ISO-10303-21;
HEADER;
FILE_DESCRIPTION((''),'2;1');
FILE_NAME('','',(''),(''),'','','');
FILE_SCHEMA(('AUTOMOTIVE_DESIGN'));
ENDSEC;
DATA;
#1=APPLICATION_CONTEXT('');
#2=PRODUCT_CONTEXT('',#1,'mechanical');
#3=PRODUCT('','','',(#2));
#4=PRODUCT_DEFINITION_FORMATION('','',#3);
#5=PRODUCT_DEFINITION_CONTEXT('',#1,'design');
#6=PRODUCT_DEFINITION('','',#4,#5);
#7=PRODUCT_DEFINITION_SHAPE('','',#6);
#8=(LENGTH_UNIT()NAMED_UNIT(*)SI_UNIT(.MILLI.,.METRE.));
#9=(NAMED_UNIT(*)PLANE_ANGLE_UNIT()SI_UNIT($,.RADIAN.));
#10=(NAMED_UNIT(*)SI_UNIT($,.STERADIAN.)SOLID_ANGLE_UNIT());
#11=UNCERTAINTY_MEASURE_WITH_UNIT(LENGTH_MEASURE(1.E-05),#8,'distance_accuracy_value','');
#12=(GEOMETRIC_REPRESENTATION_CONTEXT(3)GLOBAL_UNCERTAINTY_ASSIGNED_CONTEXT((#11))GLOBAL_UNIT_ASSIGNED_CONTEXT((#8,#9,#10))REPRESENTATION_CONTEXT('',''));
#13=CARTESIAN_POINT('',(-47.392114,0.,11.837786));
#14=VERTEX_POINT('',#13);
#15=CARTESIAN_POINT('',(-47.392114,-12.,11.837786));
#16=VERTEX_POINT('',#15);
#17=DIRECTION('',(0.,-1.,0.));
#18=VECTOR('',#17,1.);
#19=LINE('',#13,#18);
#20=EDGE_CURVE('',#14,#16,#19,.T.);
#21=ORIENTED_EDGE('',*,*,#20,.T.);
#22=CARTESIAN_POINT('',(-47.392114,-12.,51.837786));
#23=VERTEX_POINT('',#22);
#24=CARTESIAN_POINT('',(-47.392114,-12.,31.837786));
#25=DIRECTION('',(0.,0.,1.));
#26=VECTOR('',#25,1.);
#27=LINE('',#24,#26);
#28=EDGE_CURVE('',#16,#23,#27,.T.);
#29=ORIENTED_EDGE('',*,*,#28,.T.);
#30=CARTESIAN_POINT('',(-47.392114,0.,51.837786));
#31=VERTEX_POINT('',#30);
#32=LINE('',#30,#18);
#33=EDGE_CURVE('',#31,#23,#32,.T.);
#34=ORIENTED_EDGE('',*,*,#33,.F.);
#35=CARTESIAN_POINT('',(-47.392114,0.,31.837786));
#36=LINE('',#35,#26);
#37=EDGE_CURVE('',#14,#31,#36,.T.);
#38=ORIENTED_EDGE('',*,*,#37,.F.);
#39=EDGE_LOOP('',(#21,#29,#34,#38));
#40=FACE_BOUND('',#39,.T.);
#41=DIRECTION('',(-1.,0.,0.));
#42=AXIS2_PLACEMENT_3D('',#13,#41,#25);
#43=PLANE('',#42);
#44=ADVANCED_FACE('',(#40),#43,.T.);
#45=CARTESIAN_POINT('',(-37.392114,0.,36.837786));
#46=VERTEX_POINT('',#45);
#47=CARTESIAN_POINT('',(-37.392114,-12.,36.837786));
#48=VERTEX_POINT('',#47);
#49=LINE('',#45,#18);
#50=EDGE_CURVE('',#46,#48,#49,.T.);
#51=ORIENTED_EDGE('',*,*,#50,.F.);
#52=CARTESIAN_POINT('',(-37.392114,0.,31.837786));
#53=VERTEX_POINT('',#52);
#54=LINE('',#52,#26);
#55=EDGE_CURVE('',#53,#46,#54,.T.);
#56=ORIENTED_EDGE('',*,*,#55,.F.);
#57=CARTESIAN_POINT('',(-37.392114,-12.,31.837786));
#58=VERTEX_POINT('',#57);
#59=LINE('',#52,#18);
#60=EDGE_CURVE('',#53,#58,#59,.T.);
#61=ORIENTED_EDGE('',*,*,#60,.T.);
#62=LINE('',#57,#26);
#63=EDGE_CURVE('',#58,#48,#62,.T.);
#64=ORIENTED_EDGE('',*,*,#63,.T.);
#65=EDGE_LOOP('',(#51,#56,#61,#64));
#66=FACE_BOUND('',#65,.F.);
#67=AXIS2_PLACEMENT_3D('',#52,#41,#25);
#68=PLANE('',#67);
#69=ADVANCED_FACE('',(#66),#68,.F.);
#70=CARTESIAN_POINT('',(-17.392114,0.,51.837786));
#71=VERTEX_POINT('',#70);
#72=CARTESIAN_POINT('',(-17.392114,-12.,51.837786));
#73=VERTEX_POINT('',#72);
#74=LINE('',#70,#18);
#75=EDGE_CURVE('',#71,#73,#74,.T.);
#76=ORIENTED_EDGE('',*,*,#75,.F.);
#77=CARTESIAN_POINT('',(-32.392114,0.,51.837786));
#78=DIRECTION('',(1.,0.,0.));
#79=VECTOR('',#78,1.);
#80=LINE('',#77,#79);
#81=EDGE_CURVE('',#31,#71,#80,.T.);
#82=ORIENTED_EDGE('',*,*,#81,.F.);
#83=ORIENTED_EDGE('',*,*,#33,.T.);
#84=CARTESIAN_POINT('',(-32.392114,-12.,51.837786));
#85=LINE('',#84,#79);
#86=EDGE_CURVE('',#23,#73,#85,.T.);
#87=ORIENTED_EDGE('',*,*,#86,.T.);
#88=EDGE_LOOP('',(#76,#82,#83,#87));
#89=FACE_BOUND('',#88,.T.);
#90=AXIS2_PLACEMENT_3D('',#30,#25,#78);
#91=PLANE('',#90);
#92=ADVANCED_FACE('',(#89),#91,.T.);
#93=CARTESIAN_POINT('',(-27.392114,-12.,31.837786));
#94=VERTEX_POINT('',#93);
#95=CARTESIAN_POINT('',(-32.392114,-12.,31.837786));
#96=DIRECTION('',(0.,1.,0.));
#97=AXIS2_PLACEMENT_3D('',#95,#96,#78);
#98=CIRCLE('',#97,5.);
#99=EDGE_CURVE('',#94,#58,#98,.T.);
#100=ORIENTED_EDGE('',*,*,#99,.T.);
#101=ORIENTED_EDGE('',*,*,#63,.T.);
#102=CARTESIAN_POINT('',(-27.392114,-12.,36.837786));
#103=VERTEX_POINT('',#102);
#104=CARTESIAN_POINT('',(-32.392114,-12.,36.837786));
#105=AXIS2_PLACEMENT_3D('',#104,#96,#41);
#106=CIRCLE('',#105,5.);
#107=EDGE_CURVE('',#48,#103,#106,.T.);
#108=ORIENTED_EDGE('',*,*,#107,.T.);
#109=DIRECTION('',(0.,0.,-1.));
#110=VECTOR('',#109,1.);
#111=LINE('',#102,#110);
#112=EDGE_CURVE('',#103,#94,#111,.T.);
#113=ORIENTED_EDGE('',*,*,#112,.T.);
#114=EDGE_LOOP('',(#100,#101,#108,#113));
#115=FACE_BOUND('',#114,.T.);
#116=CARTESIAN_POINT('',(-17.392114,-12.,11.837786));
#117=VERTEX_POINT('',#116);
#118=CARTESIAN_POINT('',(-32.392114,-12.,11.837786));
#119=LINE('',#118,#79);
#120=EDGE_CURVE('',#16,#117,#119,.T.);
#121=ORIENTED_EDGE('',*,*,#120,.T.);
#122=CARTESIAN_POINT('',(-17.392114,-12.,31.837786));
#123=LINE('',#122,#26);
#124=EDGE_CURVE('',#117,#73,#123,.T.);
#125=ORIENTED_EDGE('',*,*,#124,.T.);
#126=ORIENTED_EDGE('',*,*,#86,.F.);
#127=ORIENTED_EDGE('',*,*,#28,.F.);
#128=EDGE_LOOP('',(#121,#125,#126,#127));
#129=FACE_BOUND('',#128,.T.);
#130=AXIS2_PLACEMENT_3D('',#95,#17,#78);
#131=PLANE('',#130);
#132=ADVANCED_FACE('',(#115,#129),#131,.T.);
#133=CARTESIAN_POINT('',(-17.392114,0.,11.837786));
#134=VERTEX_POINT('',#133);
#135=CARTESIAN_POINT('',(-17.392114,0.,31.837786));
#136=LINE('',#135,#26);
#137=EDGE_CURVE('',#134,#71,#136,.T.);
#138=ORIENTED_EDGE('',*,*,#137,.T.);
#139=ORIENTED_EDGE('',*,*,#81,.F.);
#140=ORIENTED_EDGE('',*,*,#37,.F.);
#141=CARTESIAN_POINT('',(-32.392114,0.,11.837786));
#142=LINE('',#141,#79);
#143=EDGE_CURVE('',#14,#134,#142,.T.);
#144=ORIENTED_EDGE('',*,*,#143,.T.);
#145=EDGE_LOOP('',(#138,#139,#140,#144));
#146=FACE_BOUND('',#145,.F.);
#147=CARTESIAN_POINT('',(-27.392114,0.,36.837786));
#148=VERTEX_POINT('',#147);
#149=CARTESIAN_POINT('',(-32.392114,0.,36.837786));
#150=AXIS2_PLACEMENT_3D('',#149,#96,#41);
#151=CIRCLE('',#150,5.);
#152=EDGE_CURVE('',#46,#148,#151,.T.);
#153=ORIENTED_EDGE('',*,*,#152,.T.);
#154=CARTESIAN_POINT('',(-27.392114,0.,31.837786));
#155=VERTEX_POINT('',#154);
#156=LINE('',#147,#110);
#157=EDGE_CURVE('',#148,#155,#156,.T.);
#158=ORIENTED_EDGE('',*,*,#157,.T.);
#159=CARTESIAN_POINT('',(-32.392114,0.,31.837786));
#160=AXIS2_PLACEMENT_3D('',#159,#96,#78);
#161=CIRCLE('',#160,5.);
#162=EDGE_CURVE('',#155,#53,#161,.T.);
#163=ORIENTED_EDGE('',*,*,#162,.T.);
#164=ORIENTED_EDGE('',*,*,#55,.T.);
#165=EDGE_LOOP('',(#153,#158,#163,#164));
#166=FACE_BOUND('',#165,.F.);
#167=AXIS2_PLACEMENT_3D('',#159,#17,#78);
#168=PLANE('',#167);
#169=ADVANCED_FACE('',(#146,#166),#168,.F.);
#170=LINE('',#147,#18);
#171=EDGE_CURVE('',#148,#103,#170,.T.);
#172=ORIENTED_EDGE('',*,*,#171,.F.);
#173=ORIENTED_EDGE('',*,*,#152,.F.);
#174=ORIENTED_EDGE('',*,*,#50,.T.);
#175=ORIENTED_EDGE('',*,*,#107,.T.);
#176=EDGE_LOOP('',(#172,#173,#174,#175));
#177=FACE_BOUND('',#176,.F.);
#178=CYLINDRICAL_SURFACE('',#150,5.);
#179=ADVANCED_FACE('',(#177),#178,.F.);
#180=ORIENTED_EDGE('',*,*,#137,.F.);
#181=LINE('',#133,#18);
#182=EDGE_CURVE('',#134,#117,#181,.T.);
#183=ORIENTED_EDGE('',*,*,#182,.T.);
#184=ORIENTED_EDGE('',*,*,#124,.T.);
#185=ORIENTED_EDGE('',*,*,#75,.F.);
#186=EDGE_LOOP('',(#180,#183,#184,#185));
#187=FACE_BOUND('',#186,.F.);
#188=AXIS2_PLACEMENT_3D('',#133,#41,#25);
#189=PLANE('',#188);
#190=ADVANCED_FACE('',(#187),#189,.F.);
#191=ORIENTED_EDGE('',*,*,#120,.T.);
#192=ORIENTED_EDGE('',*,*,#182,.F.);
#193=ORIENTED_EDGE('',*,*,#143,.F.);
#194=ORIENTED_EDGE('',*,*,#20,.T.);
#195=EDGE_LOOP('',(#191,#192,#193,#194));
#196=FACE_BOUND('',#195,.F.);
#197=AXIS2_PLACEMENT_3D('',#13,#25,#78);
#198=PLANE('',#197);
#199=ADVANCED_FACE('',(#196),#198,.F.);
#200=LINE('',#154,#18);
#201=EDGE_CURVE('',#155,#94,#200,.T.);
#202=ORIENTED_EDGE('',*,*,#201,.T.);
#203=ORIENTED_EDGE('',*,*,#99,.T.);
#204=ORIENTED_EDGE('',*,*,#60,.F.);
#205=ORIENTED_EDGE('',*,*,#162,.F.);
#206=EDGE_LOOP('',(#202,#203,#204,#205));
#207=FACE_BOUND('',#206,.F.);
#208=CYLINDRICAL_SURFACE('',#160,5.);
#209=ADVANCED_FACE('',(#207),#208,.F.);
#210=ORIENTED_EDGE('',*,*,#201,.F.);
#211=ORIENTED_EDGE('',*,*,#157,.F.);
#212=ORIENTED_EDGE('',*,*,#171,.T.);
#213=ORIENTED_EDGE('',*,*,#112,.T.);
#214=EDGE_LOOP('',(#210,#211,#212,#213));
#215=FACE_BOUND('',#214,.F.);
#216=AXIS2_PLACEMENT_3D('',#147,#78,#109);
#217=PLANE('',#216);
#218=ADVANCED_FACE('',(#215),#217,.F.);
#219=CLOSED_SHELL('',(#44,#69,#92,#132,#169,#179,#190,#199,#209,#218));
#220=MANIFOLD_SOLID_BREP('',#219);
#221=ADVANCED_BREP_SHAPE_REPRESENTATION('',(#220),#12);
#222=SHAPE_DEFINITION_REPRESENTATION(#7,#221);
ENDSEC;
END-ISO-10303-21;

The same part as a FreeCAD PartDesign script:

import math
import FreeCAD as App
import Part
import Sketcher
from FreeCAD import Vector
Q = App.Units.Quantity


def add_polygon(sketch, points):
    """Adds a closed chain of lines whose ends are joined by coincident constraints."""
    first, n = sketch.GeometryCount, len(points)
    for a, b in zip(points, points[1:] + points[:1]):
        sketch.addGeometry(Part.LineSegment(App.Vector(*a, 0), App.Vector(*b, 0)), False)
    for i in range(n):
        sketch.addConstraint(Sketcher.Constraint("Coincident", first + i, 2, first + (i + 1) % n, 1))

doc = App.newDocument("Part")
params = doc.addObject("Spreadsheet::Sheet", "Params")
for row, (alias, value) in enumerate([
    ("sketch1_radius", "5 mm"),
    ("sketch1_width", "30 mm"),
    ("sketch1_height", "40 mm"),
    ("sketch1_height2", "5 mm"),
    ("pad1_length", "12 mm"),
], start=1):
    params.set(f"A{row}", alias)
    params.set(f"B{row}", "=" + value)
    params.setAlias(f"B{row}", alias)

body = doc.addObject("PartDesign::Body", "Body")

# Sketch on XZ plane
sketch1 = doc.addObject("Sketcher::SketchObject", "Sketch")
body.addObject(sketch1)
sketch1.AttachmentSupport = (doc.XZ_Plane, [""])
sketch1.MapMode = "FlatFace"
add_polygon(sketch1, [(-47.392114, 51.837786), (-47.392114, 11.837786), (-17.392114, 11.837786), (-17.392114, 51.837786)])  # lines 0-3
sketch1.addGeometry(Part.LineSegment(Vector(-37.392114, 31.837786, 0), Vector(-37.392114, 36.837786, 0)), False)  # 4
sketch1.addGeometry(Part.ArcOfCircle(Part.Circle(Vector(-32.392114, 36.837786, 0), Vector(0, 0, 1), 5), math.radians(0), math.radians(180)), False)  # 5
sketch1.addGeometry(Part.LineSegment(Vector(-27.392114, 36.837786, 0), Vector(-27.392114, 31.837786, 0)), False)  # 6
sketch1.addGeometry(Part.ArcOfCircle(Part.Circle(Vector(-32.392114, 31.837786, 0), Vector(0, 0, 1), 5), math.radians(180), math.radians(360)), False)  # 7
sketch1.addConstraint([
    Sketcher.Constraint("Tangent", 4, 2, 5, 2),
    Sketcher.Constraint("Tangent", 5, 1, 6, 1),
    Sketcher.Constraint("Tangent", 6, 2, 7, 2),
    Sketcher.Constraint("Tangent", 7, 1, 4, 1),
    Sketcher.Constraint("Vertical", 0),
    Sketcher.Constraint("Horizontal", 1),
    Sketcher.Constraint("Vertical", 2),
    Sketcher.Constraint("Horizontal", 3),
    Sketcher.Constraint("Vertical", 4),
    Sketcher.Constraint("Vertical", 6),
    Sketcher.Constraint("Radius", 5, Q("5 mm")),
    Sketcher.Constraint("DistanceX", 1, 1, 1, 2, Q("30 mm")),
    Sketcher.Constraint("DistanceY", 0, 2, 0, 1, Q("40 mm")),
    Sketcher.Constraint("DistanceY", 4, 1, 4, 2, Q("5 mm")),
    Sketcher.Constraint("DistanceX", 0, 2, 7, 3, Q("15 mm")),
    Sketcher.Constraint("DistanceY", 0, 2, 7, 3, Q("20 mm")),
    Sketcher.Constraint("DistanceX", 5, 3, -1, 1, Q("32.392114 mm")),
    Sketcher.Constraint("DistanceY", -1, 1, 5, 3, Q("36.837786 mm")),
])
sketch1.setExpression("Constraints[14]", "Params.sketch1_radius")
sketch1.setExpression("Constraints[15]", "Params.sketch1_width")
sketch1.setExpression("Constraints[16]", "Params.sketch1_height")
sketch1.setExpression("Constraints[17]", "Params.sketch1_height2")
pad1 = doc.addObject("PartDesign::Pad", "Pad")
body.addObject(pad1)
pad1.Profile = sketch1
pad1.setExpression("Length", "Params.pad1_length")

doc.recompute()
